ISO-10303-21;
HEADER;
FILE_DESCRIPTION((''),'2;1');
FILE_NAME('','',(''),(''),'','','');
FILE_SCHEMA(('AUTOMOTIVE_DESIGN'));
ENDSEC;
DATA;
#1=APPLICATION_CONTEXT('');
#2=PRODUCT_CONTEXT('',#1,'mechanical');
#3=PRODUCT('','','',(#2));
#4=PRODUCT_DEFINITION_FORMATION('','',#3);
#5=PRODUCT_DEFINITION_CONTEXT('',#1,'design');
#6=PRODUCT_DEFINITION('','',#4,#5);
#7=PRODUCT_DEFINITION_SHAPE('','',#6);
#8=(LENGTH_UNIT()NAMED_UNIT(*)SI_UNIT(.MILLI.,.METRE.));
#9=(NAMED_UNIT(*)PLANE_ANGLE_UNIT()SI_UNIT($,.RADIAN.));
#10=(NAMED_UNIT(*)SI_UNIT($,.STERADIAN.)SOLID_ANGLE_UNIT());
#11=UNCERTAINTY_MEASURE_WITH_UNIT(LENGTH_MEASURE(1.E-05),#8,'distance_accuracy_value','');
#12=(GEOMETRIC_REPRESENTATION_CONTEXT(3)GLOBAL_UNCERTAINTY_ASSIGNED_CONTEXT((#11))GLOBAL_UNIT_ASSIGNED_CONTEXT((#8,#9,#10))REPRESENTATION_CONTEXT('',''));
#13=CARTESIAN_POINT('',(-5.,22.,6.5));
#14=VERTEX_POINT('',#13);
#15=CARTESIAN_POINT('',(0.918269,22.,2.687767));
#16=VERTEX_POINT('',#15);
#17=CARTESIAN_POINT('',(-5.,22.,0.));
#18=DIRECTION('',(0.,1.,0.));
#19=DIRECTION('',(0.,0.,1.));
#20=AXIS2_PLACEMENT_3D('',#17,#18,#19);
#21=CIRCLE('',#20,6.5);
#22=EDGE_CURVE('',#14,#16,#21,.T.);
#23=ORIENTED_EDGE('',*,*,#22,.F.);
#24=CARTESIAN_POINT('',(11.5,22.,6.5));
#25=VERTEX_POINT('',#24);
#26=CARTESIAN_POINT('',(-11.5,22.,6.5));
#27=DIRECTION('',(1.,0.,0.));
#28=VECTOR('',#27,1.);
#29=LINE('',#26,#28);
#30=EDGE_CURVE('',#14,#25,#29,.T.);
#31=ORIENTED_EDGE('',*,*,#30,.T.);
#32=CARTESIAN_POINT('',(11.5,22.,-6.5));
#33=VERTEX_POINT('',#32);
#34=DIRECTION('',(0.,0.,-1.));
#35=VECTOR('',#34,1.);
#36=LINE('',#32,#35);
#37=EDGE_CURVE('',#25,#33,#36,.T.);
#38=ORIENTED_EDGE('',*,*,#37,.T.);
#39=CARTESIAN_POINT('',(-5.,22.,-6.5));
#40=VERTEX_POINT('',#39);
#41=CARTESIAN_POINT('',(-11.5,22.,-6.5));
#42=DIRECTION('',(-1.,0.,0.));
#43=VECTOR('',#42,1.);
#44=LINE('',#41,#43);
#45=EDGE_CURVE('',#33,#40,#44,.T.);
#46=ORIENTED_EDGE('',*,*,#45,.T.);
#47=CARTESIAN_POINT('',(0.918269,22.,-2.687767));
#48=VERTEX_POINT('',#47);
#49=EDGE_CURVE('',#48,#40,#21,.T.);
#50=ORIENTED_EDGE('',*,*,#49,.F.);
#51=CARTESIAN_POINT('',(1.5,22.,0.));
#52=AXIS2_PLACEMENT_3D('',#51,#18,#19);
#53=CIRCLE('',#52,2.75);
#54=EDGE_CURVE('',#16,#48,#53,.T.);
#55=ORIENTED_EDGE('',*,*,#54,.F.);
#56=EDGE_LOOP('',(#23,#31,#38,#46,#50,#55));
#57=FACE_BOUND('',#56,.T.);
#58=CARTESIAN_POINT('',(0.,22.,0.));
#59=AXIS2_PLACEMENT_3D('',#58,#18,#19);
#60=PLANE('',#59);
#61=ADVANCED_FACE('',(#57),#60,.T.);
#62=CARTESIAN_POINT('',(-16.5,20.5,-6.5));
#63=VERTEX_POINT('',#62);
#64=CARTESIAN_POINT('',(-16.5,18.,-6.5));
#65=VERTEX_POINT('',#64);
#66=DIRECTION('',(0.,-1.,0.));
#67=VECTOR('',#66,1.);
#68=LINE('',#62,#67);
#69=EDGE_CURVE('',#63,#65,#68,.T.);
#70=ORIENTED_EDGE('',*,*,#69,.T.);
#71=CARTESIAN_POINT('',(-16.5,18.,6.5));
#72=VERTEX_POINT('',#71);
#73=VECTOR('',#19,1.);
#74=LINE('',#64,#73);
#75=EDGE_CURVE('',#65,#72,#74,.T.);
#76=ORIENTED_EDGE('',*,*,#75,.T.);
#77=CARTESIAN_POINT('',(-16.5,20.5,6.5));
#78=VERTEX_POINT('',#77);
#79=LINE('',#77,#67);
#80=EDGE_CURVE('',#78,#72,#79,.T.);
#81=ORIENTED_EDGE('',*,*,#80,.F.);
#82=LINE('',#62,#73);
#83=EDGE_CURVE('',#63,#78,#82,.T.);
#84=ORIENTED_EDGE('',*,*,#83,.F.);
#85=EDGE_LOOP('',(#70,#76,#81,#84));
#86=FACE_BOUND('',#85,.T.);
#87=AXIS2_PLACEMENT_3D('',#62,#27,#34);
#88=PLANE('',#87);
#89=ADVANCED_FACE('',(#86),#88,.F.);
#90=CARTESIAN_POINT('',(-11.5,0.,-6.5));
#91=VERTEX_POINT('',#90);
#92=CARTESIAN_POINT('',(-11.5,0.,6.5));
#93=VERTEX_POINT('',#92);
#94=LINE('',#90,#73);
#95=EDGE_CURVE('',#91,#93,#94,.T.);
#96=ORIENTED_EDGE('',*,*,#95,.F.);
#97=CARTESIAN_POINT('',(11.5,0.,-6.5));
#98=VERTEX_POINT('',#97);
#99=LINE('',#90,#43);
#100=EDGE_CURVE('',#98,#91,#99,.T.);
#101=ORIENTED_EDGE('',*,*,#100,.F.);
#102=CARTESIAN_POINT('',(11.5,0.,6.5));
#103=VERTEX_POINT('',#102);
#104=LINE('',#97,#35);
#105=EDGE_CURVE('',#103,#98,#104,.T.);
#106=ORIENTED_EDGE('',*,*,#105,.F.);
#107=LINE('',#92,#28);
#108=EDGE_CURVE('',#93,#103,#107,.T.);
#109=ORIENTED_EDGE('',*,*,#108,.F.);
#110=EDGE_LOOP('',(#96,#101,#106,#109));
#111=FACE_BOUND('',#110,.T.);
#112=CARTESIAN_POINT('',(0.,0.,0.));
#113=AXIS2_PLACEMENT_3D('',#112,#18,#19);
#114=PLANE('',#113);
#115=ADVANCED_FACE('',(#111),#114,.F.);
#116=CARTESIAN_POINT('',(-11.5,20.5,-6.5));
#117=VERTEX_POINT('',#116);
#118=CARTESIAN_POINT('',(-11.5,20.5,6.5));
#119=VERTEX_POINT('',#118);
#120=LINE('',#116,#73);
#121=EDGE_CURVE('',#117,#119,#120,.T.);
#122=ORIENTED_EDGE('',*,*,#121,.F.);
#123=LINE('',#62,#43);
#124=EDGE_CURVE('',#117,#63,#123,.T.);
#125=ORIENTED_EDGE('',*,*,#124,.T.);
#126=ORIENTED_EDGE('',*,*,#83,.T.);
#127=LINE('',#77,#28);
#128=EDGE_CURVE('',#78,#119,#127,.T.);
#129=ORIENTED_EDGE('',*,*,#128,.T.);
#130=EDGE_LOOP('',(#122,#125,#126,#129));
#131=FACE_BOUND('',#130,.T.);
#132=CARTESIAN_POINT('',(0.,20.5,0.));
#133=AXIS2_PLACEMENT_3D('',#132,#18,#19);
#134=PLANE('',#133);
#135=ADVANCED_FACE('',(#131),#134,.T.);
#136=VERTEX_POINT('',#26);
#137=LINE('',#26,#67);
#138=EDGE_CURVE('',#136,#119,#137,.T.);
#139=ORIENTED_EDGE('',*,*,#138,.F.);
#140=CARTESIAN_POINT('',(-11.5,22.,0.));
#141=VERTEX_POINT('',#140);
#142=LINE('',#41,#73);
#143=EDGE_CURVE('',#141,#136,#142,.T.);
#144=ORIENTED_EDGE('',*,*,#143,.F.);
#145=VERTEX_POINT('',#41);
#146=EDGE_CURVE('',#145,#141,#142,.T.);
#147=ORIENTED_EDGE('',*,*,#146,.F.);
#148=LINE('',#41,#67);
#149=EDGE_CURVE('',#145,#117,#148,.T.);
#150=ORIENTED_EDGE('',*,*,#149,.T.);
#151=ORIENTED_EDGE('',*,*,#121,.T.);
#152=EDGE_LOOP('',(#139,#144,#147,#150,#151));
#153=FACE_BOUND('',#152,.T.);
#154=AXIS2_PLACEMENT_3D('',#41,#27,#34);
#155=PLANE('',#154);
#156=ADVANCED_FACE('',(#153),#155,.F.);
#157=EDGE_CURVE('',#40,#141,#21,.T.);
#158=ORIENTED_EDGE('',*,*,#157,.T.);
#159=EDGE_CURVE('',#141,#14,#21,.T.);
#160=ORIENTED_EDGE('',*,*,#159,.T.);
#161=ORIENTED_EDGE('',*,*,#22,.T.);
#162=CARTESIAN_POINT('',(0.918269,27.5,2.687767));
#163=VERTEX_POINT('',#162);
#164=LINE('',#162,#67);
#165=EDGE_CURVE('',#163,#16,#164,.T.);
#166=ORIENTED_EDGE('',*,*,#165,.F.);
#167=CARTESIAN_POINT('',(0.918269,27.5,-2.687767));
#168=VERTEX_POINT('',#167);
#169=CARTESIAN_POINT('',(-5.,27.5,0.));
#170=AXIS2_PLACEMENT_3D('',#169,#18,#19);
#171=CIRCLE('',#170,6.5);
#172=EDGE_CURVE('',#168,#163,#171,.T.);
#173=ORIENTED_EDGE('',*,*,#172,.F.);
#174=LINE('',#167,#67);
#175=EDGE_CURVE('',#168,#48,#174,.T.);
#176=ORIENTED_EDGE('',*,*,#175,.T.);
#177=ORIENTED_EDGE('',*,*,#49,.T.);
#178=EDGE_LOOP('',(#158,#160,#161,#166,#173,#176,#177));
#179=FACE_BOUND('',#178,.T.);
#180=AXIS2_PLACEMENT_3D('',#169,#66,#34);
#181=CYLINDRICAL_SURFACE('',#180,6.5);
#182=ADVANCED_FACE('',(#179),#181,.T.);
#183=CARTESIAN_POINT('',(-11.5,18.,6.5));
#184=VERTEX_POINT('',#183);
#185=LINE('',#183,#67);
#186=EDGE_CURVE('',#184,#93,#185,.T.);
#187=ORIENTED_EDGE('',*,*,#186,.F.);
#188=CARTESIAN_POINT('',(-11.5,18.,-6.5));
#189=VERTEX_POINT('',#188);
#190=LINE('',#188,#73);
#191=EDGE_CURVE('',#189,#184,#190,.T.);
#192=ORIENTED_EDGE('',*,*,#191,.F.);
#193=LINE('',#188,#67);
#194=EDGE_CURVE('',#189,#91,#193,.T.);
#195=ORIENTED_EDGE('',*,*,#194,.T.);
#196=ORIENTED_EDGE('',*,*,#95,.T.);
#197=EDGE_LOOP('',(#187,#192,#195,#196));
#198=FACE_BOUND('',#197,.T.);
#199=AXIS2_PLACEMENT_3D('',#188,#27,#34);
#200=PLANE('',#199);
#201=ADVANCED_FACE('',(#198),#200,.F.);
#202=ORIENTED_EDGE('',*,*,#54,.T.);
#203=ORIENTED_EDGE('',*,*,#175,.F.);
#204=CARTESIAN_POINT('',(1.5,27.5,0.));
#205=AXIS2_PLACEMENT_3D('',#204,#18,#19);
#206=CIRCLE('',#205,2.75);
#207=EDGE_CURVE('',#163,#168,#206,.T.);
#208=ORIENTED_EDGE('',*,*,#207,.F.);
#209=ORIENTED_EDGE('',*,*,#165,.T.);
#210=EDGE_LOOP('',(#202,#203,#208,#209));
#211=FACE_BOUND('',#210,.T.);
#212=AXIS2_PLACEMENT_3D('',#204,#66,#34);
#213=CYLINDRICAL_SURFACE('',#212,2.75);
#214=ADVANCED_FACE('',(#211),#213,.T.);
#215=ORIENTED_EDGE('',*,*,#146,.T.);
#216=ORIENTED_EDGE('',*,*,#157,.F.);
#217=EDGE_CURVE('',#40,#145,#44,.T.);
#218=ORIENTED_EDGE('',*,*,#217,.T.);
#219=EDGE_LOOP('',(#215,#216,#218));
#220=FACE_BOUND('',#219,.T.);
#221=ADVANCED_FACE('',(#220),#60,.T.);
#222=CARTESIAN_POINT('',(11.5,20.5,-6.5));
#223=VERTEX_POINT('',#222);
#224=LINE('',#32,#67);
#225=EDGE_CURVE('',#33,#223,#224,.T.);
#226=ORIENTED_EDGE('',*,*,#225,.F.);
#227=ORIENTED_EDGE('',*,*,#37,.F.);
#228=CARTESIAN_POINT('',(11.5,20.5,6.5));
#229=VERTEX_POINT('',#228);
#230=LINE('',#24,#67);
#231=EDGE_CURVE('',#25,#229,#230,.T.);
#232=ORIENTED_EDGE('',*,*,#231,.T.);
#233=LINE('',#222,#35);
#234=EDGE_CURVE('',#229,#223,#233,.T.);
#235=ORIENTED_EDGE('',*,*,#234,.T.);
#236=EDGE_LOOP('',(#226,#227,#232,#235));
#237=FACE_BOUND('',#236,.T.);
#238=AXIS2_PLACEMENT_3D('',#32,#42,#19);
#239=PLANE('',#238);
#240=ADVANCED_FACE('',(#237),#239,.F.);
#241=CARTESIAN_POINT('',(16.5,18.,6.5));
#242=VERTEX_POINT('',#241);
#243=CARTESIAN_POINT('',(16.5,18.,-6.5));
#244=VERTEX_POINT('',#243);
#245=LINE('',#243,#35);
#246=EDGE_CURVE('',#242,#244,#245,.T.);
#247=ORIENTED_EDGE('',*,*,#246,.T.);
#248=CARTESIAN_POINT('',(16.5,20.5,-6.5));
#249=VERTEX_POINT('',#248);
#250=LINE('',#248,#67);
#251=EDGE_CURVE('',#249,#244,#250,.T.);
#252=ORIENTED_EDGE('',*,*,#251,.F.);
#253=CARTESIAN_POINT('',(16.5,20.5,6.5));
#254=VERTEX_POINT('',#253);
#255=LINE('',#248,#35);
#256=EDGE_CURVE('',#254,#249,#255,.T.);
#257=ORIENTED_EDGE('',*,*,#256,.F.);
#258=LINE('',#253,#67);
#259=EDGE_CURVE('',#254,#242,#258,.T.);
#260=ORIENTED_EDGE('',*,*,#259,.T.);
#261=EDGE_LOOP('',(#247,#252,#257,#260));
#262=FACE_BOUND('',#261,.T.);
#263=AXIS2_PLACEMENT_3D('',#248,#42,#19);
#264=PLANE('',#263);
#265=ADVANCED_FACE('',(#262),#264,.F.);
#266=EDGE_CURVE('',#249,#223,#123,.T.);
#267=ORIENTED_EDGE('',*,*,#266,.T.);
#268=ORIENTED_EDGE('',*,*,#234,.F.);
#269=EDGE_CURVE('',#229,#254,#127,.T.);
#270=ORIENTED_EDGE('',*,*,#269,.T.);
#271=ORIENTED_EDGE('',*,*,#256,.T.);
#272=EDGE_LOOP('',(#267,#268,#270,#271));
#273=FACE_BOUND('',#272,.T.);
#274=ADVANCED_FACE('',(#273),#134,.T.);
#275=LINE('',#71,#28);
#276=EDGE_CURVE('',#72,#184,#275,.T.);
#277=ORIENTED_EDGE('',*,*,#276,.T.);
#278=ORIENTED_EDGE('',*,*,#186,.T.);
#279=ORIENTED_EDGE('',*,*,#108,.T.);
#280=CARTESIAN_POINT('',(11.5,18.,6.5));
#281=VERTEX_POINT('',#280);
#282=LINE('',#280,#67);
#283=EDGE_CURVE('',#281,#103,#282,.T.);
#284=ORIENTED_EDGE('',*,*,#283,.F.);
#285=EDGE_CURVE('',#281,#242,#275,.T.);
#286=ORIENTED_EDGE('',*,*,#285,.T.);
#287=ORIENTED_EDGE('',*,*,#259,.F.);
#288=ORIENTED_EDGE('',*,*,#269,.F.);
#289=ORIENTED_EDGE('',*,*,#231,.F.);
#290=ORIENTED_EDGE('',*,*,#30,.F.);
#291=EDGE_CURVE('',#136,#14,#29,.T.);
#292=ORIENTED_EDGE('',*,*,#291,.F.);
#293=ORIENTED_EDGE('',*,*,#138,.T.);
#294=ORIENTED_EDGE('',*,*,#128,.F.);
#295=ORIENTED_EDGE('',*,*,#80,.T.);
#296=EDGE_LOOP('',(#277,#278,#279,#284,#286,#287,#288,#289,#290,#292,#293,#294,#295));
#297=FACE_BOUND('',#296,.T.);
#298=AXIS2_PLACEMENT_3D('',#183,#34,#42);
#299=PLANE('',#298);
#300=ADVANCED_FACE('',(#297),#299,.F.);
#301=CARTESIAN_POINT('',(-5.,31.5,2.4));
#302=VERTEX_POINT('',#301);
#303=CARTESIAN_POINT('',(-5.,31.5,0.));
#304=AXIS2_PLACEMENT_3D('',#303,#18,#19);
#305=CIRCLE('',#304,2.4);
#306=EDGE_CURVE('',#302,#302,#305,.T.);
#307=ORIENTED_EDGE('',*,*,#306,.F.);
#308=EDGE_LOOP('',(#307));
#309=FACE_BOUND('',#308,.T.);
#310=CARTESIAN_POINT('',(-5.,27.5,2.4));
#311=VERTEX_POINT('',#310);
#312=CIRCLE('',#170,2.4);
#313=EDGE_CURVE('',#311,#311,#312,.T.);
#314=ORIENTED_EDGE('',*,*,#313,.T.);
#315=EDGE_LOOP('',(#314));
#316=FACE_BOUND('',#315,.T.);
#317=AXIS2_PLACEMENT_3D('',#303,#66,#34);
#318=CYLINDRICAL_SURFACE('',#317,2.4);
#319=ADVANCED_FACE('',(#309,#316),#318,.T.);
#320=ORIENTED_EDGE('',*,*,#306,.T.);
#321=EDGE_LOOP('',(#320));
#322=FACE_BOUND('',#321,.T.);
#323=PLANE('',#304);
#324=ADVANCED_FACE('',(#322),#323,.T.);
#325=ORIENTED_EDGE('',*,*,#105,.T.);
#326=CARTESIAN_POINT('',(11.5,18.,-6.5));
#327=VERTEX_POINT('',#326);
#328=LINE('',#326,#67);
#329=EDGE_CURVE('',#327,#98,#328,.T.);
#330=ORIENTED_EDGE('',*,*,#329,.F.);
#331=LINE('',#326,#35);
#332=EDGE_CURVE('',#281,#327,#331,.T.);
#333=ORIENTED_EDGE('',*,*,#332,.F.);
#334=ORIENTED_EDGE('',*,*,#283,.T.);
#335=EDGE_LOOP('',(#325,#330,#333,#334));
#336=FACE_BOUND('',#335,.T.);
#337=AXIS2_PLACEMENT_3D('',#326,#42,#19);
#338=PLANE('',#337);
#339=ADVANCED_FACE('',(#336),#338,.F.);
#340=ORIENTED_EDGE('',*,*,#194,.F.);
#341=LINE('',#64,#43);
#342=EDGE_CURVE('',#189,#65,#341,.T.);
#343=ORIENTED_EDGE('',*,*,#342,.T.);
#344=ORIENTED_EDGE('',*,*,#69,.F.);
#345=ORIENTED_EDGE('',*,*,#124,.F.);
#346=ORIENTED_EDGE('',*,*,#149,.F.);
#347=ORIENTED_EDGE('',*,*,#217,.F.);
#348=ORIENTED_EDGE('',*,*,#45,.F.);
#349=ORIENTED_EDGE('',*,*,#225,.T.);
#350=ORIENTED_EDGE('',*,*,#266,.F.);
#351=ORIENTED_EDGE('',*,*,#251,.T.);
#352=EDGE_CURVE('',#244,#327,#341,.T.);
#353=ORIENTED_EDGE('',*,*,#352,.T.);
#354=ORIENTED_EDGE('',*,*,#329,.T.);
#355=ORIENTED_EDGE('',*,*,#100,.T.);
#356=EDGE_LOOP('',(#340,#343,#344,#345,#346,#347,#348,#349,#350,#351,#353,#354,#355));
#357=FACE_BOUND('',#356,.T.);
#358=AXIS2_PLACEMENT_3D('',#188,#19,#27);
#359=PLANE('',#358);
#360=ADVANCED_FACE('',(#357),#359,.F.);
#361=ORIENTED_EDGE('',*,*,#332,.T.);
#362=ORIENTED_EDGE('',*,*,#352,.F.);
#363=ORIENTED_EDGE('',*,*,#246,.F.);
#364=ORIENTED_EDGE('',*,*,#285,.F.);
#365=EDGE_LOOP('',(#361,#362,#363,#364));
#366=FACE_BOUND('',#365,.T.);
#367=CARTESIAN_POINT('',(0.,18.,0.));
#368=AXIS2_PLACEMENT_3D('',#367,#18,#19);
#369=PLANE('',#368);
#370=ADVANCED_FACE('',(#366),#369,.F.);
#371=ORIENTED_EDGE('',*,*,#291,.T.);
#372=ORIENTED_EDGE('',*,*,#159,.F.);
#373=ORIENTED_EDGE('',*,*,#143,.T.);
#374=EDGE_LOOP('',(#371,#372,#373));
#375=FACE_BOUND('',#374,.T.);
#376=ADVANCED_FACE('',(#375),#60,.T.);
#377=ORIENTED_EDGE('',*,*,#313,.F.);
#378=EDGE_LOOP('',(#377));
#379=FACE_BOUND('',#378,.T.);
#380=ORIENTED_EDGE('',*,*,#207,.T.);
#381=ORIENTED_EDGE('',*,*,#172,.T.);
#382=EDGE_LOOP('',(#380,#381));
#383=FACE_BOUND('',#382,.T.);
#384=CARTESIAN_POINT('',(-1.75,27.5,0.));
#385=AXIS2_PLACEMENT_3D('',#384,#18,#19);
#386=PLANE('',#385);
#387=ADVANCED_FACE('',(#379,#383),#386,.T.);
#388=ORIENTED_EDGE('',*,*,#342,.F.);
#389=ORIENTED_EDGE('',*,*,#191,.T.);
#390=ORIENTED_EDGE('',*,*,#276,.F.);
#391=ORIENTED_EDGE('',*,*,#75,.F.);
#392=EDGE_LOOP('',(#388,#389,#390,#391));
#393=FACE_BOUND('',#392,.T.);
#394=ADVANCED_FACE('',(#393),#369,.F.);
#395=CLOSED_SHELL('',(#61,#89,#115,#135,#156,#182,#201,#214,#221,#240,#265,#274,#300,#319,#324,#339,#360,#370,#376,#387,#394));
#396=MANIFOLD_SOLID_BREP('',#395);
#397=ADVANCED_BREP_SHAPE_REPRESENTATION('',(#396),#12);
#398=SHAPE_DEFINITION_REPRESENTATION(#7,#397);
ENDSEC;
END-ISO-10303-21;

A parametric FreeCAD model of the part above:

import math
import FreeCAD as App
import Part
import Sketcher
Q = App.Units.Quantity


def add_polygon(sketch, points):
    """Adds a closed chain of lines whose ends are joined by coincident constraints."""
    first, n = sketch.GeometryCount, len(points)
    for a, b in zip(points, points[1:] + points[:1]):
        sketch.addGeometry(Part.LineSegment(App.Vector(*a, 0), App.Vector(*b, 0)), False)
    for i in range(n):
        sketch.addConstraint(Sketcher.Constraint("Coincident", first + i, 2, first + (i + 1) % n, 1))

doc = App.newDocument("Part")
body = doc.addObject("PartDesign::Body", "Body")

sketch1 = body.newObject("Sketcher::SketchObject", "Sketch")
sketch1.AttachmentSupport = (doc.getObject("XZ_Plane"), [""])
sketch1.MapMode = "FlatFace"
add_polygon(sketch1, [(-12, -6), (-12, 6), (12, 6), (12, -6)])
sketch1.addConstraint([
    Sketcher.Constraint("Vertical", 0),
    Sketcher.Constraint("Horizontal", 1),
    Sketcher.Constraint("Vertical", 2),
    Sketcher.Constraint("Horizontal", 3),
    Sketcher.Constraint("Symmetric", 0, 2, 2, 2, -1, 1),
    Sketcher.Constraint("DistanceX", 1, 1, 1, 2, Q("23 mm")),
    Sketcher.Constraint("DistanceY", 0, 1, 0, 2, Q("13 mm")),
])
pad1 = body.newObject("PartDesign::Pad", "Pad")
pad1.Profile = sketch1
pad1.Length = 18
pad1.Reversed = True

sketch2 = body.newObject("Sketcher::SketchObject", "Sketch001")
sketch2.AttachmentSupport = (doc.getObject("XZ_Plane"), [""])
sketch2.MapMode = "FlatFace"
sketch2.AttachmentOffset = App.Placement(App.Vector(0, 0, -18), App.Rotation())
add_polygon(sketch2, [(-16, -6), (-16, 6), (16, 6), (16, -6)])
sketch2.addConstraint([
    Sketcher.Constraint("Vertical", 0),
    Sketcher.Constraint("Horizontal", 1),
    Sketcher.Constraint("Vertical", 2),
    Sketcher.Constraint("Horizontal", 3),
    Sketcher.Constraint("Symmetric", 0, 2, 2, 2, -1, 1),
    Sketcher.Constraint("DistanceX", 1, 1, 1, 2, Q("33 mm")),
    Sketcher.Constraint("DistanceY", 0, 1, 0, 2, Q("13 mm")),
])
pad2 = body.newObject("PartDesign::Pad", "Pad001")
pad2.Profile = sketch2
pad2.Length = 2.5
pad2.Reversed = True

sketch3 = body.newObject("Sketcher::SketchObject", "Sketch002")
sketch3.AttachmentSupport = (doc.getObject("XZ_Plane"), [""])
sketch3.MapMode = "FlatFace"
sketch3.AttachmentOffset = App.Placement(App.Vector(0, 0, -20.5), App.Rotation())
add_polygon(sketch3, [(-12, -6), (-12, 6), (12, 6), (12, -6)])
sketch3.addConstraint([
    Sketcher.Constraint("Vertical", 0),
    Sketcher.Constraint("Horizontal", 1),
    Sketcher.Constraint("Vertical", 2),
    Sketcher.Constraint("Horizontal", 3),
    Sketcher.Constraint("Symmetric", 0, 2, 2, 2, -1, 1),
    Sketcher.Constraint("DistanceX", 1, 1, 1, 2, Q("23 mm")),
    Sketcher.Constraint("DistanceY", 0, 1, 0, 2, Q("13 mm")),
])
pad3 = body.newObject("PartDesign::Pad", "Pad002")
pad3.Profile = sketch3
pad3.Length = 1.5
pad3.Reversed = True

sketch4 = body.newObject("Sketcher::SketchObject", "Sketch003")
sketch4.AttachmentSupport = (doc.getObject("XZ_Plane"), [""])
sketch4.MapMode = "FlatFace"
sketch4.AttachmentOffset = App.Placement(App.Vector(0, 0, -22), App.Rotation())
sketch4.addGeometry([
    Part.ArcOfCircle(Part.Circle(App.Vector(-5, 0, 0), App.Vector(0, 0, 1), 6.5), math.radians(24), math.radians(336)),
    Part.ArcOfCircle(Part.Circle(App.Vector(1.5, 0, 0), App.Vector(0, 0, 1), 2.8), math.radians(-102), math.radians(102)),
], False)
sketch4.addConstraint([
    Sketcher.Constraint("Coincident", 0, 1, 1, 2),
    Sketcher.Constraint("Coincident", 1, 1, 0, 2),
    Sketcher.Constraint("Symmetric", 0, 1, 1, 1, -1),
    Sketcher.Constraint("Radius", 0, Q("6.5 mm")),
    Sketcher.Constraint("Radius", 1, Q("2.75 mm")),
    Sketcher.Constraint("DistanceX", 0, 3, -1, 1, Q("5 mm")),
    Sketcher.Constraint("DistanceX", -1, 1, 1, 3, Q("1.5 mm")),
])
pad4 = body.newObject("PartDesign::Pad", "Pad003")
pad4.Profile = sketch4
pad4.Length = 5.5
pad4.Reversed = True

sketch5 = body.newObject("Sketcher::SketchObject", "Sketch004")
sketch5.AttachmentSupport = (doc.getObject("XZ_Plane"), [""])
sketch5.MapMode = "FlatFace"
sketch5.AttachmentOffset = App.Placement(App.Vector(0, 0, -27.5), App.Rotation())
sketch5.addGeometry(Part.Circle(App.Vector(-5, 0, 0), App.Vector(0, 0, 1), 2.4), False)
sketch5.addConstraint([
    Sketcher.Constraint("PointOnObject", 0, 3, -1),
    Sketcher.Constraint("Diameter", 0, Q("4.8 mm")),
    Sketcher.Constraint("DistanceX", 0, 3, -1, 1, Q("5 mm")),
])
pad5 = body.newObject("PartDesign::Pad", "Pad004")
pad5.Profile = sketch5
pad5.Length = 4
pad5.Reversed = True

doc.recompute()
